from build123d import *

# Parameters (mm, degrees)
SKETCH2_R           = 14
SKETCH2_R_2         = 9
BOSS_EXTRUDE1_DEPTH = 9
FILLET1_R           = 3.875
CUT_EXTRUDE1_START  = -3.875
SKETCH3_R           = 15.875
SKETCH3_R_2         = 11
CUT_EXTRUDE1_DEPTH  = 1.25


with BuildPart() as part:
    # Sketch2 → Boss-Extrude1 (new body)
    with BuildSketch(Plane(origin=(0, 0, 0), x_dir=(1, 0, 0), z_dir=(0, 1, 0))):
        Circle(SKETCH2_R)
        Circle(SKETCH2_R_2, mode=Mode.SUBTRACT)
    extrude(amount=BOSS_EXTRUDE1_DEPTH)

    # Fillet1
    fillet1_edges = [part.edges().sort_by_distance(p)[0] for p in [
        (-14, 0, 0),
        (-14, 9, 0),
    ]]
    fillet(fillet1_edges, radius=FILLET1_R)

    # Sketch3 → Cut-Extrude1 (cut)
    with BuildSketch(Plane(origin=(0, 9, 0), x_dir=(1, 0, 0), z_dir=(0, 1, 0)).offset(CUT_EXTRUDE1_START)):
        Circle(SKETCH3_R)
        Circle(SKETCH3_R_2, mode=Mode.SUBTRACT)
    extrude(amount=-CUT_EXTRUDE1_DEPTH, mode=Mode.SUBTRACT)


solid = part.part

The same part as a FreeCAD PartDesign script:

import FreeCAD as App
import Part
import Sketcher
Q = App.Units.Quantity


def edges_at(feature, points):
    """Names of the edges that pass closest to the given points."""
    edges = feature.Shape.Edges
    near = lambda p: min(range(len(edges)), key=lambda i: edges[i].distToShape(Part.Vertex(*p))[0])
    return sorted({f"Edge{near(p) + 1}" for p in points})

doc = App.newDocument("Part")
body = doc.addObject("PartDesign::Body", "Body")

# Sketch on XZ plane
sketch1 = body.newObject("Sketcher::SketchObject", "Sketch")
sketch1.AttachmentSupport = (doc.getObject("XZ_Plane"), [""])
sketch1.MapMode = "FlatFace"
sketch1.addGeometry([
    Part.Circle(App.Vector(0, 0, 0), App.Vector(0, 0, 1), 14),
    Part.Circle(App.Vector(0, 0, 0), App.Vector(0, 0, 1), 9),
], False)
sketch1.addConstraint([
    Sketcher.Constraint("Coincident", 0, 3, -1, 1),
    Sketcher.Constraint("Coincident", 1, 3, -1, 1),
    Sketcher.Constraint("Diameter", 0, Q("28 mm")),
    Sketcher.Constraint("Diameter", 1, Q("18 mm")),
])
pad1 = body.newObject("PartDesign::Pad", "Pad")
pad1.Profile = sketch1
pad1.Length = 9
pad1.Reversed = True
doc.recompute()

fillet = body.newObject("PartDesign::Fillet", "Fillet")
fillet.Base = (pad1, edges_at(pad1, [(-14, 0, 0), (-14, 9, 0)]))
fillet.Radius = 3.875

# Sketch on XZ plane
sketch2 = body.newObject("Sketcher::SketchObject", "Sketch001")
sketch2.AttachmentSupport = (doc.getObject("XZ_Plane"), [""])
sketch2.MapMode = "FlatFace"
sketch2.AttachmentOffset = App.Placement(App.Vector(0, 0, -5.125), App.Rotation())
sketch2.addGeometry([
    Part.Circle(App.Vector(0, 0, 0), App.Vector(0, 0, 1), 16),
    Part.Circle(App.Vector(0, 0, 0), App.Vector(0, 0, 1), 11),
], False)
sketch2.addConstraint([
    Sketcher.Constraint("Coincident", 0, 3, -1, 1),
    Sketcher.Constraint("Coincident", 1, 3, -1, 1),
    Sketcher.Constraint("Diameter", 1, Q("22 mm")),
    Sketcher.Constraint("Diameter", 0, Q("31.75 mm")),
])
pocket1 = body.newObject("PartDesign::Pocket", "Pocket")
pocket1.Profile = sketch2
pocket1.Length = 1.25
pocket1.Reversed = True

doc.recompute()
